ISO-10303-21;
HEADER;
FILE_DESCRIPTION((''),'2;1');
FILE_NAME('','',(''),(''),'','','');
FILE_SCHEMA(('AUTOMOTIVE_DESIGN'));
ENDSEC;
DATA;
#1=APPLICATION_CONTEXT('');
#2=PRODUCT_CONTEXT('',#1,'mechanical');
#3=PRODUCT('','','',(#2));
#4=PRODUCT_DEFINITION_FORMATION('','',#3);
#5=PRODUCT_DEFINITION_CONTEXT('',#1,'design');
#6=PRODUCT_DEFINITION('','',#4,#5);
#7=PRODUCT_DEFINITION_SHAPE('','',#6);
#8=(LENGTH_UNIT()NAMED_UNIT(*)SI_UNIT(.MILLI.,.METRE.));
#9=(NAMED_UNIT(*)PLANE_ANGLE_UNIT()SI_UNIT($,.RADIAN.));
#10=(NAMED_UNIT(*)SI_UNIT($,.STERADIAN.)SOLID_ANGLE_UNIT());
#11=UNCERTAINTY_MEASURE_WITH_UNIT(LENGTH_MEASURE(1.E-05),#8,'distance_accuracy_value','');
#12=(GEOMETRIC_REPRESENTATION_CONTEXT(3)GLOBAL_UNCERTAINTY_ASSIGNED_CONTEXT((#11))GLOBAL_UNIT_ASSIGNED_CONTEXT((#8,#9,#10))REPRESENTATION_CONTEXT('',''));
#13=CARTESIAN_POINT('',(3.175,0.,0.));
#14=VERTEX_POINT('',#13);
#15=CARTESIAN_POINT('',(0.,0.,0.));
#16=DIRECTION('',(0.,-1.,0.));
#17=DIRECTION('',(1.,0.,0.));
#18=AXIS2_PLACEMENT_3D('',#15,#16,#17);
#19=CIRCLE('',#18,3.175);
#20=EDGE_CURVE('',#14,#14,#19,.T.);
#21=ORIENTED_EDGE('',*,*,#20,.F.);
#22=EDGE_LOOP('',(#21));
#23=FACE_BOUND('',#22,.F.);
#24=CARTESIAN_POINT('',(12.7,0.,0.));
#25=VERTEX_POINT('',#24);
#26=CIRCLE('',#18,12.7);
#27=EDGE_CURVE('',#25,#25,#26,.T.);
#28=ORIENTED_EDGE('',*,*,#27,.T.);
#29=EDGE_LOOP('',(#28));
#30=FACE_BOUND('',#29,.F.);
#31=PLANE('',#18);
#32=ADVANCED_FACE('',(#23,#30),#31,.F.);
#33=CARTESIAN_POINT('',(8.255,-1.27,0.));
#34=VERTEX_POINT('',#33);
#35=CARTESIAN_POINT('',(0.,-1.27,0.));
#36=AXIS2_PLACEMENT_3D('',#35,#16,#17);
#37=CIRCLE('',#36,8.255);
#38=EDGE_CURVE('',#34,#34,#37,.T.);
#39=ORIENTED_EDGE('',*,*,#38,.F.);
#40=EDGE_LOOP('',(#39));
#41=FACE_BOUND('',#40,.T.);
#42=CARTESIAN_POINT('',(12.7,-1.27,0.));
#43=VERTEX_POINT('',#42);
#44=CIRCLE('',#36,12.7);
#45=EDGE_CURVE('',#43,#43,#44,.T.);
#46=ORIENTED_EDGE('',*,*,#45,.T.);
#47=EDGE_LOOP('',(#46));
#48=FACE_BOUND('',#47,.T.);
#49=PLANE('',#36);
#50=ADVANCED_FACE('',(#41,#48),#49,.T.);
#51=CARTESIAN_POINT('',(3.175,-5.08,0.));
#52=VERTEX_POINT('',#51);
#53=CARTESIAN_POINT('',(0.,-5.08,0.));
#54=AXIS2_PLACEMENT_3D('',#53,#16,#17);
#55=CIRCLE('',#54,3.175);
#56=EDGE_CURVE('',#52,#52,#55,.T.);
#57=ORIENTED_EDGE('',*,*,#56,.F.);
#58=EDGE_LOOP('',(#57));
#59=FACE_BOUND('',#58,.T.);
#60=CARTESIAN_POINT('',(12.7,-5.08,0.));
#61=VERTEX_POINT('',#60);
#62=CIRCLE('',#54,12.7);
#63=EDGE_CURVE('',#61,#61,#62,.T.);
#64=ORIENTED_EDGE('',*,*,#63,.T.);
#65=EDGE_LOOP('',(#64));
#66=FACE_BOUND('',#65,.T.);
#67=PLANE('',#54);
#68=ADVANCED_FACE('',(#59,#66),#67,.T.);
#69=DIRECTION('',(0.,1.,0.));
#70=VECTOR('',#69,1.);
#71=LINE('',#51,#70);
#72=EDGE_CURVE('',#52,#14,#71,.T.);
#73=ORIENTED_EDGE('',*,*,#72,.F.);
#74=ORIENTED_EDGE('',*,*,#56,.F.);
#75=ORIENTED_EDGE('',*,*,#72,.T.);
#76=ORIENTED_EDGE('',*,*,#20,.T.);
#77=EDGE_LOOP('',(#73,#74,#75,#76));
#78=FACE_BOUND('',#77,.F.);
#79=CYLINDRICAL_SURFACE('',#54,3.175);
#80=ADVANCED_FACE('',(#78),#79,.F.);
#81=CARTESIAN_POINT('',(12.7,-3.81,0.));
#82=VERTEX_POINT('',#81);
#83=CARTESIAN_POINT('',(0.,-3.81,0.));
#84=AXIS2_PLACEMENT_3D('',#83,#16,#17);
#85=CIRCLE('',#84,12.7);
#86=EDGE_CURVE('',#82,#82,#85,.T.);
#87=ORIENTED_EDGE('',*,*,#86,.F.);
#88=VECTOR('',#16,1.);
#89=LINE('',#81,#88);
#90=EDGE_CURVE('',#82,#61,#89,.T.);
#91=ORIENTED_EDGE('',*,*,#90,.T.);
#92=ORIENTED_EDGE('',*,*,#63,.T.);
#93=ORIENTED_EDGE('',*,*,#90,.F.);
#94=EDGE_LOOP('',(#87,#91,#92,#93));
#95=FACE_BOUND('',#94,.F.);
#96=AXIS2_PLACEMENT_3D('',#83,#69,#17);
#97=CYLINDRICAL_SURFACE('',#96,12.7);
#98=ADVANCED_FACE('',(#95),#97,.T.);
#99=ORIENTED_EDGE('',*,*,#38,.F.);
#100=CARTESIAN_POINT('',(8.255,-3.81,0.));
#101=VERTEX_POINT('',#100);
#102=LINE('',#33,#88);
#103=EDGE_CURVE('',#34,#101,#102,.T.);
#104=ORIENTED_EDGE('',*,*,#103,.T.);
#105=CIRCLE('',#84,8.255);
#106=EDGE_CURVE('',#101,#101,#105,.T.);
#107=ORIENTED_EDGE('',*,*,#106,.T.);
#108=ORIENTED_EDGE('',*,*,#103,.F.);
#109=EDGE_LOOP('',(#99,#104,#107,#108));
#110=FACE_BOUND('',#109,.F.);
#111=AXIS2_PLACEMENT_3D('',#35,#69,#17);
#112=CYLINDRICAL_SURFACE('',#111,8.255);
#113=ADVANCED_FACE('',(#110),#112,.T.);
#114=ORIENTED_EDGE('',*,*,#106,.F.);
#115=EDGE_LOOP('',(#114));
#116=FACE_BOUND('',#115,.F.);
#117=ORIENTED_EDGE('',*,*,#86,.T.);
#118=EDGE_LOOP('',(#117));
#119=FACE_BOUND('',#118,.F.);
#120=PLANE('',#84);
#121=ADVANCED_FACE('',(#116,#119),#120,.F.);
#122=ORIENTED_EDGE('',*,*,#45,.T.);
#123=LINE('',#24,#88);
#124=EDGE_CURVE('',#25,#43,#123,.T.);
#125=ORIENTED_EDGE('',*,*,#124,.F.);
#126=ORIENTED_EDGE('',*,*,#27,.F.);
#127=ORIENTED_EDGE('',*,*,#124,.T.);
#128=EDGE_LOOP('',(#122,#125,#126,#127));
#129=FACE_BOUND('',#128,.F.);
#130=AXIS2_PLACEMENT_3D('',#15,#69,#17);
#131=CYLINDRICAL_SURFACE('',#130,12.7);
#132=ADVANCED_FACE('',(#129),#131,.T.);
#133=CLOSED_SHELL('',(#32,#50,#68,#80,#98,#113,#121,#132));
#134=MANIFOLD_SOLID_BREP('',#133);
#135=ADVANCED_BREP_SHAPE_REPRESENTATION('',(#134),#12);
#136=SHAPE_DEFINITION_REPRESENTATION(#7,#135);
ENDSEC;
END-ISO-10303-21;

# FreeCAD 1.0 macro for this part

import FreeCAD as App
import Part
import Sketcher

V = App.Vector
Q = App.Units.Quantity

doc = App.newDocument("Part")
params = doc.addObject("Spreadsheet::Sheet", "Params")
for row, (alias, value) in enumerate([
    ("sketch1_diameter", "1 in"),
    ("pad1_length", "0.05 in"),
    ("sketch2_diameter", "0.65 in"),
    ("pad2_length", "0.1 in"),
    ("sketch3_diameter", "1 in"),
    ("pad3_length", "0.05 in"),
    ("sketch4_diameter", "0.25 in"),
    ("pocket1_length", "1 in"),
], start=1):
    params.set(f"A{row}", alias)
    params.set(f"B{row}", "=" + value)
    params.setAlias(f"B{row}", alias)

body = doc.addObject("PartDesign::Body", "Body")

# Sketch on XZ plane
sketch1 = body.newObject("Sketcher::SketchObject", "Sketch")
sketch1.AttachmentSupport = (doc.getObject("XZ_Plane"), [""])
sketch1.MapMode = "FlatFace"
sketch1.addGeometry(Part.Circle(V(0, 0, 0), V(0, 0, 1), 12.7), False)
sketch1.addConstraint(Sketcher.Constraint("Coincident", 0, 3, -1, 1))
sketch1.addConstraint(Sketcher.Constraint("Diameter", 0, Q("1 in")))
sketch1.setExpression("Constraints[1]", "Params.sketch1_diameter")
pad1 = body.newObject("PartDesign::Pad", "Pad")
pad1.Profile = sketch1
pad1.setExpression("Length", "Params.pad1_length")

# Sketch on XZ plane
sketch2 = body.newObject("Sketcher::SketchObject", "Sketch001")
sketch2.AttachmentSupport = (doc.getObject("XZ_Plane"), [""])
sketch2.MapMode = "FlatFace"
sketch2.AttachmentOffset = App.Placement(V(0, 0, 0.05 * 25.4), App.Rotation())
sketch2.addGeometry(Part.Circle(V(0, 0, 0), V(0, 0, 1), 8.255), False)
sketch2.addConstraint(Sketcher.Constraint("Coincident", 0, 3, -1, 1))
sketch2.addConstraint(Sketcher.Constraint("Diameter", 0, Q("0.65 in")))
sketch2.setExpression("Constraints[1]", "Params.sketch2_diameter")
pad2 = body.newObject("PartDesign::Pad", "Pad001")
pad2.Profile = sketch2
pad2.setExpression("Length", "Params.pad2_length")

# Sketch on XZ plane
sketch3 = body.newObject("Sketcher::SketchObject", "Sketch002")
sketch3.AttachmentSupport = (doc.getObject("XZ_Plane"), [""])
sketch3.MapMode = "FlatFace"
sketch3.AttachmentOffset = App.Placement(V(0, 0, 0.15 * 25.4), App.Rotation())
sketch3.addGeometry(Part.Circle(V(0, 0, 0), V(0, 0, 1), 12.7), False)
sketch3.addConstraint(Sketcher.Constraint("Coincident", 0, 3, -1, 1))
sketch3.addConstraint(Sketcher.Constraint("Diameter", 0, Q("1 in")))
sketch3.setExpression("Constraints[1]", "Params.sketch3_diameter")
pad3 = body.newObject("PartDesign::Pad", "Pad002")
pad3.Profile = sketch3
pad3.setExpression("Length", "Params.pad3_length")

# Sketch on XZ plane
sketch4 = body.newObject("Sketcher::SketchObject", "Sketch003")
sketch4.AttachmentSupport = (doc.getObject("XZ_Plane"), [""])
sketch4.MapMode = "FlatFace"
sketch4.AttachmentOffset = App.Placement(V(0, 0, 0.2 * 25.4), App.Rotation())
sketch4.addGeometry(Part.Circle(V(0, 0, 0), V(0, 0, 1), 3.175), False)
sketch4.addConstraint(Sketcher.Constraint("Coincident", 0, 3, -1, 1))
sketch4.addConstraint(Sketcher.Constraint("Diameter", 0, Q("0.25 in")))
sketch4.setExpression("Constraints[1]", "Params.sketch4_diameter")
pocket1 = body.newObject("PartDesign::Pocket", "Pocket")
pocket1.Profile = sketch4
pocket1.setExpression("Length", "Params.pocket1_length")

doc.recompute()
